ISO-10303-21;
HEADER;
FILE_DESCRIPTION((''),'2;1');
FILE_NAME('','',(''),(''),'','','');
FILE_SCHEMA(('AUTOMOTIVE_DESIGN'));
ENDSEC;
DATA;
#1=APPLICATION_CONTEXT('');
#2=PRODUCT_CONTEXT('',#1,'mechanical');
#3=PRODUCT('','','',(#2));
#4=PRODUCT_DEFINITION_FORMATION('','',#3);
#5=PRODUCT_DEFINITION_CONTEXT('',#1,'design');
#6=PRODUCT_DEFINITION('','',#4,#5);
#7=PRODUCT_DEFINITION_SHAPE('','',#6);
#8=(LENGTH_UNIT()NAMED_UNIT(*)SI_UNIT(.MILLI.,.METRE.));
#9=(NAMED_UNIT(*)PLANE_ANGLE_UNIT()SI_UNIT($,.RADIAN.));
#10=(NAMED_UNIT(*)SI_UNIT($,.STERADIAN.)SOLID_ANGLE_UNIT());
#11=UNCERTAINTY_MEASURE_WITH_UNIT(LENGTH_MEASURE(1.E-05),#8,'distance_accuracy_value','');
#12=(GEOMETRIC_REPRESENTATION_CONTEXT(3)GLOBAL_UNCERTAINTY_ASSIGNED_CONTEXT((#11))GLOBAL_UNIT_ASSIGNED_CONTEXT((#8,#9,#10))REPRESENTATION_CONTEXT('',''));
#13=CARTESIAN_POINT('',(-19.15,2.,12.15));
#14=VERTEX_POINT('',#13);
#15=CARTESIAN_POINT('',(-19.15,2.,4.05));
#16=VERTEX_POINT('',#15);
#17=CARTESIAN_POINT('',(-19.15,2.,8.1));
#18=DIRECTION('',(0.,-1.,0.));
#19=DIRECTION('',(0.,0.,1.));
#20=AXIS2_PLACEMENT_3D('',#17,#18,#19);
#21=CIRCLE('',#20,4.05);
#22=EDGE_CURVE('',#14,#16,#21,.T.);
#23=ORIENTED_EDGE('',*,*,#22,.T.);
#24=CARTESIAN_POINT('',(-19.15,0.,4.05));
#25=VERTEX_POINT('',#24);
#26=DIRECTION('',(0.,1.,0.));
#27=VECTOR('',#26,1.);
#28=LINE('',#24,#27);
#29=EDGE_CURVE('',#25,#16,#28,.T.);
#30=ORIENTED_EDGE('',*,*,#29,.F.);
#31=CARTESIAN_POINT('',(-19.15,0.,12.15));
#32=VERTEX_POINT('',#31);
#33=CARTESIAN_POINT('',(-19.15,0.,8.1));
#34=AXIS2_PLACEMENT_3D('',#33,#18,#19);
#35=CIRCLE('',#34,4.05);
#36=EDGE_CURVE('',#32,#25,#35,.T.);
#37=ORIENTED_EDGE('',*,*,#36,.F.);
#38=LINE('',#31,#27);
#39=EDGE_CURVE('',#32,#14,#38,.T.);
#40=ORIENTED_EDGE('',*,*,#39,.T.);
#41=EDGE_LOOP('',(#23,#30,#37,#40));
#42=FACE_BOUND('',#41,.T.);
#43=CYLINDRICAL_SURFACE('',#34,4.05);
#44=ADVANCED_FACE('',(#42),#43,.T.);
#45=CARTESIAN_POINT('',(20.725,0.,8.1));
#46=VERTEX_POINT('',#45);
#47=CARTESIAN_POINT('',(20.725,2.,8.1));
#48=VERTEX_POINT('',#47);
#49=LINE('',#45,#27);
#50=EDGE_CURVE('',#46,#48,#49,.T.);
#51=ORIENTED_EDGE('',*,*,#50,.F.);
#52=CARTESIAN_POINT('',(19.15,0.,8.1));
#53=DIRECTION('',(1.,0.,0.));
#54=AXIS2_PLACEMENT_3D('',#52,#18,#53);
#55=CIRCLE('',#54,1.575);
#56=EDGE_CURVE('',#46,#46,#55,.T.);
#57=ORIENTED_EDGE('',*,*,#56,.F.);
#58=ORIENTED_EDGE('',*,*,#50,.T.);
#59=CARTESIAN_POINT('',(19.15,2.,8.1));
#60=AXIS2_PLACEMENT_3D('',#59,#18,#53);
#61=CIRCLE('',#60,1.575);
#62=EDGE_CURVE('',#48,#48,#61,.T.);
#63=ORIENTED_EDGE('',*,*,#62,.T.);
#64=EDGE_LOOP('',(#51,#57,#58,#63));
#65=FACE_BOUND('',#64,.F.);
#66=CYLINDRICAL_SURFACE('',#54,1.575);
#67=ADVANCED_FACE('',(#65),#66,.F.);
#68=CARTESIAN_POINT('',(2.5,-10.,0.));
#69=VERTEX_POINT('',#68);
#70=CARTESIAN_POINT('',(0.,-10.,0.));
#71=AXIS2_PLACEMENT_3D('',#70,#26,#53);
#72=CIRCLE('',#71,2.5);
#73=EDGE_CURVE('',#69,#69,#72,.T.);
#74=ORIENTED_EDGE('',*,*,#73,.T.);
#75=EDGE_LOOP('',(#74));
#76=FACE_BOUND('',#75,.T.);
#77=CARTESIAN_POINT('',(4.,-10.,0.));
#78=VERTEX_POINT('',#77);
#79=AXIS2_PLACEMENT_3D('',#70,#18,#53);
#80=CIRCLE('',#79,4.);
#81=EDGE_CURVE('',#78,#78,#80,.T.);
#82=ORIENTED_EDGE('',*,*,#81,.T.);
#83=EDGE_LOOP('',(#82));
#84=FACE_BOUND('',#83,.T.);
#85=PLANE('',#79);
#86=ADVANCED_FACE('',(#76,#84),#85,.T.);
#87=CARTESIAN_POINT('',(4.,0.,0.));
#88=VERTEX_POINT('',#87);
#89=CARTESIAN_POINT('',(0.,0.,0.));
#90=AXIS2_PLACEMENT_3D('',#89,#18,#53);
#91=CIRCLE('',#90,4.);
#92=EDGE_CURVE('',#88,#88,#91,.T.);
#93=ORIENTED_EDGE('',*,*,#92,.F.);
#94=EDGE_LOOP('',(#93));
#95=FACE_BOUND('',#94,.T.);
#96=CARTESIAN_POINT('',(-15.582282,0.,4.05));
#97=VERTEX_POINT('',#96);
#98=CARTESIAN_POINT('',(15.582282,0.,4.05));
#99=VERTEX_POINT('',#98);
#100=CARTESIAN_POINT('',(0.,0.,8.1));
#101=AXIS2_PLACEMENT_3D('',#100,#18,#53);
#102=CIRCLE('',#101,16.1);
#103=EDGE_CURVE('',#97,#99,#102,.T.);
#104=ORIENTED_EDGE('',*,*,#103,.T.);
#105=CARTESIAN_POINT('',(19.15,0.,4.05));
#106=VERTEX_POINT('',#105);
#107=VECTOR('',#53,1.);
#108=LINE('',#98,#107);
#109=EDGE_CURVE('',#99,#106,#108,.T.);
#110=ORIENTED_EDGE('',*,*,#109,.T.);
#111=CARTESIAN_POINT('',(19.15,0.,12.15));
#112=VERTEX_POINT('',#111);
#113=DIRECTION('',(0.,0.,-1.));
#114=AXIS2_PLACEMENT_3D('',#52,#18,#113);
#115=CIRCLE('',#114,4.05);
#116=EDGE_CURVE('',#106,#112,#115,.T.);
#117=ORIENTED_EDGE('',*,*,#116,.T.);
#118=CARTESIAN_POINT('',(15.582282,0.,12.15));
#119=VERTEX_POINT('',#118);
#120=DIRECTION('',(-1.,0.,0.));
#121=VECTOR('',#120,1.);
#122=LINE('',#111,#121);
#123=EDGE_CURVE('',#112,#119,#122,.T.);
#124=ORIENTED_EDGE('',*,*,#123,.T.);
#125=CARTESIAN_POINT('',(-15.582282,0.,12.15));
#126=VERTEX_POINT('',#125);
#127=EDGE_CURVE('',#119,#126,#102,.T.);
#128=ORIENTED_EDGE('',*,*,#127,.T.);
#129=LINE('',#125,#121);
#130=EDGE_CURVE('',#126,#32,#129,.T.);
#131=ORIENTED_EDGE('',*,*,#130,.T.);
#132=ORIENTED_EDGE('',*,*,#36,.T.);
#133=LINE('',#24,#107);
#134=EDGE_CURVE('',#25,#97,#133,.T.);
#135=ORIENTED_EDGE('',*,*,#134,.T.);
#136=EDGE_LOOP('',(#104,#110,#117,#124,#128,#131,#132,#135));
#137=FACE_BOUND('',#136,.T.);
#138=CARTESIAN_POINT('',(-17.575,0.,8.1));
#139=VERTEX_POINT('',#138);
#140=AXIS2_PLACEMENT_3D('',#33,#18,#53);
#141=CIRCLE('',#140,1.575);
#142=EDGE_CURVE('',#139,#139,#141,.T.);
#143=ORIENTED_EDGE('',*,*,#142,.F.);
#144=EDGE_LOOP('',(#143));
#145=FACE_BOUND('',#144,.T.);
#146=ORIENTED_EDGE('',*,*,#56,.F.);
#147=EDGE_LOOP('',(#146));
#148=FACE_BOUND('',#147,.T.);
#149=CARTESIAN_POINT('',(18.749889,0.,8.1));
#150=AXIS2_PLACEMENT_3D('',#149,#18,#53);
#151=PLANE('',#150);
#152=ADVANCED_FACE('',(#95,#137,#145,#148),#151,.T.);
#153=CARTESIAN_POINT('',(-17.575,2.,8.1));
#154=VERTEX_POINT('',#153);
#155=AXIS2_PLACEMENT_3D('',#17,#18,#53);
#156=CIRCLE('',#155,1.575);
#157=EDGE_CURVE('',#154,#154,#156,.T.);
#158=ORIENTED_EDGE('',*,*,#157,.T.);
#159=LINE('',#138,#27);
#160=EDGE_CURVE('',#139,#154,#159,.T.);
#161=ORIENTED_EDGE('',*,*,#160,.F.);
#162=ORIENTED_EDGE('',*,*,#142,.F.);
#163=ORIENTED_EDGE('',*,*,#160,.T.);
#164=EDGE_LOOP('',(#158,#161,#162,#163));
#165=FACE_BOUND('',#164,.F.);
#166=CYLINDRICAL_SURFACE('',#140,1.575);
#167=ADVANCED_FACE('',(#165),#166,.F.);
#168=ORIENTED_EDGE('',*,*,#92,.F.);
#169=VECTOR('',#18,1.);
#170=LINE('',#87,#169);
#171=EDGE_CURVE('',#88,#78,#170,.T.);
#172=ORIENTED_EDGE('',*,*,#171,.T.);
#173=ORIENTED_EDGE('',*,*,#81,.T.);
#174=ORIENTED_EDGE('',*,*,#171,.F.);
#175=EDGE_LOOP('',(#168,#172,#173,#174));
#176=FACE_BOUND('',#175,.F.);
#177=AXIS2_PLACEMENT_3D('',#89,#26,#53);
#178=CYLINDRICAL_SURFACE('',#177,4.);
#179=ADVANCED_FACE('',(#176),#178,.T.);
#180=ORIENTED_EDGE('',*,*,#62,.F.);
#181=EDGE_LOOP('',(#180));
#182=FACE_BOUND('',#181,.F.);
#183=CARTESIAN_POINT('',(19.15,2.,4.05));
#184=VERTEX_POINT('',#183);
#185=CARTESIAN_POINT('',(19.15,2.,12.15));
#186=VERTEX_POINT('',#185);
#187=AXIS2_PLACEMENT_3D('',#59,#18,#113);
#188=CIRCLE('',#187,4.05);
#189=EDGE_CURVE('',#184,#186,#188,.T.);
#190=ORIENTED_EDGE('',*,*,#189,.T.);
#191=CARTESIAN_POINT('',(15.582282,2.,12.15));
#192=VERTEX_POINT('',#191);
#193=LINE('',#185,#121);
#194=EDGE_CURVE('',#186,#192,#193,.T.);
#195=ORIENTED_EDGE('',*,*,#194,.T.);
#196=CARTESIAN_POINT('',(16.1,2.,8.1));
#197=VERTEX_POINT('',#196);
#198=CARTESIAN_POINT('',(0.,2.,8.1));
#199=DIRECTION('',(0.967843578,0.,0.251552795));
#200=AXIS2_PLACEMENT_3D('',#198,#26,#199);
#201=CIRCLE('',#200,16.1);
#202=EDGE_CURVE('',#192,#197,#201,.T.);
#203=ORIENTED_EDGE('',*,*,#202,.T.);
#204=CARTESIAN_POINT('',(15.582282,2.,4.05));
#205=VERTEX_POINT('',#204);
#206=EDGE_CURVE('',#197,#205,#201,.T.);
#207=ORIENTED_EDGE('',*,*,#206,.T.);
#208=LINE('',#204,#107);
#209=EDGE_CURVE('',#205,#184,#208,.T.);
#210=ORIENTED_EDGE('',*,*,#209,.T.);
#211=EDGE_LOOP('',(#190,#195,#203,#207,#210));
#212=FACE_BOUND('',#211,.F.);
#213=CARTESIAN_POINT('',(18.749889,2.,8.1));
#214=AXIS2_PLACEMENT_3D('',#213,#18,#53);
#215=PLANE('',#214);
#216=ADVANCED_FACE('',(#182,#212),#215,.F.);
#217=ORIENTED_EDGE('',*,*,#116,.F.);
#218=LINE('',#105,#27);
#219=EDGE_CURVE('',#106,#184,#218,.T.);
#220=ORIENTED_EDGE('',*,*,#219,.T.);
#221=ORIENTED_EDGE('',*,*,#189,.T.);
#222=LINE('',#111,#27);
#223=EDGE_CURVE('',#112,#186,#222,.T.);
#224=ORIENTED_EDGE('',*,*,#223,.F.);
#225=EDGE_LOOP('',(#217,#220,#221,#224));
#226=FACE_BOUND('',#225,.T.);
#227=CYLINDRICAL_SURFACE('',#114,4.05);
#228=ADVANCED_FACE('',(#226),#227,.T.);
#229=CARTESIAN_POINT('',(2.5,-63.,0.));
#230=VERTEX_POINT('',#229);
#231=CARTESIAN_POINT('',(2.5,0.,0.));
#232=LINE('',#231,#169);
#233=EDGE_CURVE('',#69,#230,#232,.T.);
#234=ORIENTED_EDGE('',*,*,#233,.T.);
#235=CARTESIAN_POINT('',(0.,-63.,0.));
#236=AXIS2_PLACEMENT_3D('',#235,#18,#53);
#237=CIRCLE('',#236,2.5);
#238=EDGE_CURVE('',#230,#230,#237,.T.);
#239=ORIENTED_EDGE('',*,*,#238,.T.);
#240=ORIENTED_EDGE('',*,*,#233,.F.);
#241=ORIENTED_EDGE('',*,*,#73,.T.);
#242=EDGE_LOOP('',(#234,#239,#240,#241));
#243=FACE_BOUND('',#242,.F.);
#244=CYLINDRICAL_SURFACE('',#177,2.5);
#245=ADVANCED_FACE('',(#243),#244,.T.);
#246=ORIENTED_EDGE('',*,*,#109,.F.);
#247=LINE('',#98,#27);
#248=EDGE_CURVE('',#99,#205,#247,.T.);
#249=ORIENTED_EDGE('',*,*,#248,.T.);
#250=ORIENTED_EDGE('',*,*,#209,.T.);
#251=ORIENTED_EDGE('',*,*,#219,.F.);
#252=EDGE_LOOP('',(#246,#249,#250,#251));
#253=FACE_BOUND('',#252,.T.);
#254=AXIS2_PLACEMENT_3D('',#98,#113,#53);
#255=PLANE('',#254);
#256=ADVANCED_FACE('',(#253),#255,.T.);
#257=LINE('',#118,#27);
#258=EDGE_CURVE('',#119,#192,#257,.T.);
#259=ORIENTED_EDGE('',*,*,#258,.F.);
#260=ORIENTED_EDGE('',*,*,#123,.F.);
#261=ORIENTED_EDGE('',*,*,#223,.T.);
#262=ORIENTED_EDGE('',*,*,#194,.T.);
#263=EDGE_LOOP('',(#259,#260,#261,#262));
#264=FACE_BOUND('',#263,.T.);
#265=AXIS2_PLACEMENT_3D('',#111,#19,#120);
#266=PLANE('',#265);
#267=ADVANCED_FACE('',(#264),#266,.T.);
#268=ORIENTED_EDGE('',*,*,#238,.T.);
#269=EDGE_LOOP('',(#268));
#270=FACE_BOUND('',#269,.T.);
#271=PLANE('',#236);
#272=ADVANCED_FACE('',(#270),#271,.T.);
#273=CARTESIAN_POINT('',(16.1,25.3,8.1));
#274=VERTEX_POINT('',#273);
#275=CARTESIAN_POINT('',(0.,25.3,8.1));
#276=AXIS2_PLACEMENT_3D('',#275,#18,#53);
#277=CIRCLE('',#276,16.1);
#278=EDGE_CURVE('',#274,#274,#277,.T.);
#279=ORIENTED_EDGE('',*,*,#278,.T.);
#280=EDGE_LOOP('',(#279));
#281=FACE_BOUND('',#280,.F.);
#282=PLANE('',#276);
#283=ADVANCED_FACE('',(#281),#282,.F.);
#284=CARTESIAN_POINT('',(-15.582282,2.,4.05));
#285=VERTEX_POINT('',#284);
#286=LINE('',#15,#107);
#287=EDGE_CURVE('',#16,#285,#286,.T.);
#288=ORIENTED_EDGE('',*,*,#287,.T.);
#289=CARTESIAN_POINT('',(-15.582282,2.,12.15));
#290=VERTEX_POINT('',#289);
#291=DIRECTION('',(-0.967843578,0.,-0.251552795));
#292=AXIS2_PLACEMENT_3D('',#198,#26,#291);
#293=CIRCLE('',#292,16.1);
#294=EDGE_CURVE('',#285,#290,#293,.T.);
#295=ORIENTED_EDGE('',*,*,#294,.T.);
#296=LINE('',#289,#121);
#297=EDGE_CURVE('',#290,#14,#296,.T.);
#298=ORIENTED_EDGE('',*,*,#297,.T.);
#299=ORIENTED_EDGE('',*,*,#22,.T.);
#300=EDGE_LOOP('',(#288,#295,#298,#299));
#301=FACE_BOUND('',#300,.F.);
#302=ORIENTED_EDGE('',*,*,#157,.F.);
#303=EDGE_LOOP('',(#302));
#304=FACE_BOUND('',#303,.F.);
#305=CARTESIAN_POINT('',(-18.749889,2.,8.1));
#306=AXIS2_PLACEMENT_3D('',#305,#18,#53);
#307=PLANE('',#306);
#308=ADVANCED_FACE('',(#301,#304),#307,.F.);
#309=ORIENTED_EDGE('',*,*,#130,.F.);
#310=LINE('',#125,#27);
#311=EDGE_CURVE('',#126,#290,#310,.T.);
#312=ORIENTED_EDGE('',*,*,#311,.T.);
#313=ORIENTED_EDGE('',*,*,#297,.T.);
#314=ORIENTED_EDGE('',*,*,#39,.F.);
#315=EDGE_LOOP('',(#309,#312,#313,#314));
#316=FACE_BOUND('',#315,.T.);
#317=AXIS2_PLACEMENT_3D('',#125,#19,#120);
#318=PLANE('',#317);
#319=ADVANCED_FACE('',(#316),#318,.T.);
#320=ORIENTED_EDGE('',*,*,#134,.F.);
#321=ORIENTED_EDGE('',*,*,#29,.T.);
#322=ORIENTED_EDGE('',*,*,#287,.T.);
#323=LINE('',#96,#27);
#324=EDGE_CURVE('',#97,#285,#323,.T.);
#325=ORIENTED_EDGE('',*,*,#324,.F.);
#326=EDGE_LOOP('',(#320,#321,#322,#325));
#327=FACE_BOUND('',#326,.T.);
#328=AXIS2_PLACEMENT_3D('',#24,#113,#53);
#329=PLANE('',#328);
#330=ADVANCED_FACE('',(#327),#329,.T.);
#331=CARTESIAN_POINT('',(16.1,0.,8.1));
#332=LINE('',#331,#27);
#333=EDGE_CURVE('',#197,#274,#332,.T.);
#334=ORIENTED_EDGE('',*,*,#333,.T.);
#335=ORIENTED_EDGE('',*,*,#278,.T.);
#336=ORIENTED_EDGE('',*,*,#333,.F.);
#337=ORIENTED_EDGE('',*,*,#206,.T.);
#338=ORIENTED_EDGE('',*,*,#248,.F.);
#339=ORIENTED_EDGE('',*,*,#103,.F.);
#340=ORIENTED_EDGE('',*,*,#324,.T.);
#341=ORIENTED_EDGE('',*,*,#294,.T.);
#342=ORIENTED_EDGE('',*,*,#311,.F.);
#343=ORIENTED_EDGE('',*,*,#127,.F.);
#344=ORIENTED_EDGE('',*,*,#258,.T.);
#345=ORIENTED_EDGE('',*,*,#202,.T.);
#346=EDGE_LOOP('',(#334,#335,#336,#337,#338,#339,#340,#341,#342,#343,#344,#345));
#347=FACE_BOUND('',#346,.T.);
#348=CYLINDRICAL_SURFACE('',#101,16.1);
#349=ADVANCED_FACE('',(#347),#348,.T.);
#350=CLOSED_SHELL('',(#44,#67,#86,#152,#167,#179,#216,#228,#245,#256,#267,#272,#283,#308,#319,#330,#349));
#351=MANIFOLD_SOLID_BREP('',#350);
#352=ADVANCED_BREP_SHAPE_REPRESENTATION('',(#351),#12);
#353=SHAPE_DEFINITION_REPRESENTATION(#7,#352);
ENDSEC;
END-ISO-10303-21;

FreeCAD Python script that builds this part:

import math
import FreeCAD as App
import Part
import Sketcher
from FreeCAD import Vector

doc = App.newDocument("Part")
body = doc.addObject("PartDesign::Body", "Body")

# Sketch on XZ plane
sketch1 = doc.addObject("Sketcher::SketchObject", "Sketch")
body.addObject(sketch1)
sketch1.AttachmentSupport = (doc.XZ_Plane, [""])
sketch1.MapMode = "FlatFace"
sketch1.addGeometry(Part.Circle(Vector(0, 8.1, 0), Vector(0, 0, 1), 16.1), False)
sketch1.addConstraint(Sketcher.Constraint("PointOnObject", 0, 3, -2))
sketch1.addConstraint(Sketcher.Constraint("Diameter", 0, 32.2))
sketch1.addConstraint(Sketcher.Constraint("DistanceY", -1, 1, 0, 3, 8.1))
pad1 = doc.addObject("PartDesign::Pad", "Pad")
body.addObject(pad1)
pad1.Profile = sketch1
pad1.Length = 25.3
pad1.Reversed = True

# Sketch on XZ plane
sketch2 = doc.addObject("Sketcher::SketchObject", "Sketch001")
body.addObject(sketch2)
sketch2.AttachmentSupport = (doc.XZ_Plane, [""])
sketch2.MapMode = "FlatFace"
sketch2.addGeometry(Part.ArcOfCircle(Part.Circle(Vector(-19.15, 8.1, 0), Vector(0, 0, 1), 4.05), math.radians(90), math.radians(270)), False)
sketch2.addGeometry(Part.LineSegment(Vector(-19.15, 4.05, 0), Vector(-15.582282, 4.05, 0)), False)
sketch2.addGeometry(Part.ArcOfCircle(Part.Circle(Vector(0, 8.1, 0), Vector(0, 0, 1), 16.1), math.radians(165.430582), math.radians(194.569418)), False)
sketch2.addGeometry(Part.LineSegment(Vector(-15.582282, 12.15, 0), Vector(-19.15, 12.15, 0)), False)
sketch2.addGeometry(Part.Circle(Vector(-19.15, 8.1, 0), Vector(0, 0, 1), 1.575), False)
sketch2.addGeometry(Part.LineSegment(Vector(19.15, 12.15, 0), Vector(15.582282, 12.15, 0)), False)
sketch2.addGeometry(Part.ArcOfCircle(Part.Circle(Vector(0, 8.1, 0), Vector(0, 0, 1), 16.1), math.radians(-14.569418), math.radians(14.569418)), False)
sketch2.addGeometry(Part.LineSegment(Vector(15.582282, 4.05, 0), Vector(19.15, 4.05, 0)), False)
sketch2.addGeometry(Part.ArcOfCircle(Part.Circle(Vector(19.15, 8.1, 0), Vector(0, 0, 1), 4.05), math.radians(-90), math.radians(90)), False)
sketch2.addGeometry(Part.Circle(Vector(19.15, 8.1, 0), Vector(0, 0, 1), 1.575), False)
sketch2.addConstraint(Sketcher.Constraint("Tangent", 0, 2, 1, 1))
sketch2.addConstraint(Sketcher.Constraint("Coincident", 1, 2, 2, 2))
sketch2.addConstraint(Sketcher.Constraint("Coincident", 2, 1, 3, 1))
sketch2.addConstraint(Sketcher.Constraint("Tangent", 3, 2, 0, 1))
sketch2.addConstraint(Sketcher.Constraint("Coincident", 5, 2, 6, 2))
sketch2.addConstraint(Sketcher.Constraint("Coincident", 6, 1, 7, 1))
sketch2.addConstraint(Sketcher.Constraint("Tangent", 7, 2, 8, 1))
sketch2.addConstraint(Sketcher.Constraint("Tangent", 8, 2, 5, 1))
sketch2.addConstraint(Sketcher.Constraint("Horizontal", 1))
sketch2.addConstraint(Sketcher.Constraint("Horizontal", 3))
sketch2.addConstraint(Sketcher.Constraint("Horizontal", 5))
sketch2.addConstraint(Sketcher.Constraint("Horizontal", 7))
sketch2.addConstraint(Sketcher.Constraint("Coincident", 4, 3, 0, 3))
sketch2.addConstraint(Sketcher.Constraint("Coincident", 6, 3, 2, 3))
sketch2.addConstraint(Sketcher.Constraint("Coincident", 9, 3, 8, 3))
sketch2.addConstraint(Sketcher.Constraint("Equal", 2, 6))
sketch2.addConstraint(Sketcher.Constraint("Equal", 0, 8))
sketch2.addConstraint(Sketcher.Constraint("Equal", 4, 9))
sketch2.addConstraint(Sketcher.Constraint("Symmetric", 0, 3, 8, 3, -2))
sketch2.addConstraint(Sketcher.Constraint("PointOnObject", 2, 3, -2))
sketch2.addConstraint(Sketcher.Constraint("Horizontal", 0, 3, 2, 3))
sketch2.addConstraint(Sketcher.Constraint("Radius", 2, 16.1))
sketch2.addConstraint(Sketcher.Constraint("Diameter", 4, 3.15))
sketch2.addConstraint(Sketcher.Constraint("Radius", 0, 4.05))
sketch2.addConstraint(Sketcher.Constraint("DistanceY", -1, 1, 0, 3, 8.1))
sketch2.addConstraint(Sketcher.Constraint("DistanceX", 0, 3, 8, 3, 38.3))
pad2 = doc.addObject("PartDesign::Pad", "Pad001")
body.addObject(pad2)
pad2.Profile = sketch2
pad2.Length = 2
pad2.Reversed = True

# Sketch on XZ plane
sketch3 = doc.addObject("Sketcher::SketchObject", "Sketch002")
body.addObject(sketch3)
sketch3.AttachmentSupport = (doc.XZ_Plane, [""])
sketch3.MapMode = "FlatFace"
sketch3.addGeometry(Part.Circle(Vector(0, 0, 0), Vector(0, 0, 1), 2.5), False)
sketch3.addConstraint(Sketcher.Constraint("Coincident", 0, 3, -1, 1))
sketch3.addConstraint(Sketcher.Constraint("Diameter", 0, 5.0))
pad3 = doc.addObject("PartDesign::Pad", "Pad002")
body.addObject(pad3)
pad3.Profile = sketch3
pad3.Length = 63

# Sketch on XZ plane
sketch4 = doc.addObject("Sketcher::SketchObject", "Sketch003")
body.addObject(sketch4)
sketch4.AttachmentSupport = (doc.XZ_Plane, [""])
sketch4.MapMode = "FlatFace"
sketch4.addGeometry(Part.Circle(Vector(0, 0, 0), Vector(0, 0, 1), 4), False)
sketch4.addConstraint(Sketcher.Constraint("Coincident", 0, 3, -1, 1))
sketch4.addConstraint(Sketcher.Constraint("Diameter", 0, 8.0))
pad4 = doc.addObject("PartDesign::Pad", "Pad003")
body.addObject(pad4)
pad4.Profile = sketch4
pad4.Length = 10

doc.recompute()
